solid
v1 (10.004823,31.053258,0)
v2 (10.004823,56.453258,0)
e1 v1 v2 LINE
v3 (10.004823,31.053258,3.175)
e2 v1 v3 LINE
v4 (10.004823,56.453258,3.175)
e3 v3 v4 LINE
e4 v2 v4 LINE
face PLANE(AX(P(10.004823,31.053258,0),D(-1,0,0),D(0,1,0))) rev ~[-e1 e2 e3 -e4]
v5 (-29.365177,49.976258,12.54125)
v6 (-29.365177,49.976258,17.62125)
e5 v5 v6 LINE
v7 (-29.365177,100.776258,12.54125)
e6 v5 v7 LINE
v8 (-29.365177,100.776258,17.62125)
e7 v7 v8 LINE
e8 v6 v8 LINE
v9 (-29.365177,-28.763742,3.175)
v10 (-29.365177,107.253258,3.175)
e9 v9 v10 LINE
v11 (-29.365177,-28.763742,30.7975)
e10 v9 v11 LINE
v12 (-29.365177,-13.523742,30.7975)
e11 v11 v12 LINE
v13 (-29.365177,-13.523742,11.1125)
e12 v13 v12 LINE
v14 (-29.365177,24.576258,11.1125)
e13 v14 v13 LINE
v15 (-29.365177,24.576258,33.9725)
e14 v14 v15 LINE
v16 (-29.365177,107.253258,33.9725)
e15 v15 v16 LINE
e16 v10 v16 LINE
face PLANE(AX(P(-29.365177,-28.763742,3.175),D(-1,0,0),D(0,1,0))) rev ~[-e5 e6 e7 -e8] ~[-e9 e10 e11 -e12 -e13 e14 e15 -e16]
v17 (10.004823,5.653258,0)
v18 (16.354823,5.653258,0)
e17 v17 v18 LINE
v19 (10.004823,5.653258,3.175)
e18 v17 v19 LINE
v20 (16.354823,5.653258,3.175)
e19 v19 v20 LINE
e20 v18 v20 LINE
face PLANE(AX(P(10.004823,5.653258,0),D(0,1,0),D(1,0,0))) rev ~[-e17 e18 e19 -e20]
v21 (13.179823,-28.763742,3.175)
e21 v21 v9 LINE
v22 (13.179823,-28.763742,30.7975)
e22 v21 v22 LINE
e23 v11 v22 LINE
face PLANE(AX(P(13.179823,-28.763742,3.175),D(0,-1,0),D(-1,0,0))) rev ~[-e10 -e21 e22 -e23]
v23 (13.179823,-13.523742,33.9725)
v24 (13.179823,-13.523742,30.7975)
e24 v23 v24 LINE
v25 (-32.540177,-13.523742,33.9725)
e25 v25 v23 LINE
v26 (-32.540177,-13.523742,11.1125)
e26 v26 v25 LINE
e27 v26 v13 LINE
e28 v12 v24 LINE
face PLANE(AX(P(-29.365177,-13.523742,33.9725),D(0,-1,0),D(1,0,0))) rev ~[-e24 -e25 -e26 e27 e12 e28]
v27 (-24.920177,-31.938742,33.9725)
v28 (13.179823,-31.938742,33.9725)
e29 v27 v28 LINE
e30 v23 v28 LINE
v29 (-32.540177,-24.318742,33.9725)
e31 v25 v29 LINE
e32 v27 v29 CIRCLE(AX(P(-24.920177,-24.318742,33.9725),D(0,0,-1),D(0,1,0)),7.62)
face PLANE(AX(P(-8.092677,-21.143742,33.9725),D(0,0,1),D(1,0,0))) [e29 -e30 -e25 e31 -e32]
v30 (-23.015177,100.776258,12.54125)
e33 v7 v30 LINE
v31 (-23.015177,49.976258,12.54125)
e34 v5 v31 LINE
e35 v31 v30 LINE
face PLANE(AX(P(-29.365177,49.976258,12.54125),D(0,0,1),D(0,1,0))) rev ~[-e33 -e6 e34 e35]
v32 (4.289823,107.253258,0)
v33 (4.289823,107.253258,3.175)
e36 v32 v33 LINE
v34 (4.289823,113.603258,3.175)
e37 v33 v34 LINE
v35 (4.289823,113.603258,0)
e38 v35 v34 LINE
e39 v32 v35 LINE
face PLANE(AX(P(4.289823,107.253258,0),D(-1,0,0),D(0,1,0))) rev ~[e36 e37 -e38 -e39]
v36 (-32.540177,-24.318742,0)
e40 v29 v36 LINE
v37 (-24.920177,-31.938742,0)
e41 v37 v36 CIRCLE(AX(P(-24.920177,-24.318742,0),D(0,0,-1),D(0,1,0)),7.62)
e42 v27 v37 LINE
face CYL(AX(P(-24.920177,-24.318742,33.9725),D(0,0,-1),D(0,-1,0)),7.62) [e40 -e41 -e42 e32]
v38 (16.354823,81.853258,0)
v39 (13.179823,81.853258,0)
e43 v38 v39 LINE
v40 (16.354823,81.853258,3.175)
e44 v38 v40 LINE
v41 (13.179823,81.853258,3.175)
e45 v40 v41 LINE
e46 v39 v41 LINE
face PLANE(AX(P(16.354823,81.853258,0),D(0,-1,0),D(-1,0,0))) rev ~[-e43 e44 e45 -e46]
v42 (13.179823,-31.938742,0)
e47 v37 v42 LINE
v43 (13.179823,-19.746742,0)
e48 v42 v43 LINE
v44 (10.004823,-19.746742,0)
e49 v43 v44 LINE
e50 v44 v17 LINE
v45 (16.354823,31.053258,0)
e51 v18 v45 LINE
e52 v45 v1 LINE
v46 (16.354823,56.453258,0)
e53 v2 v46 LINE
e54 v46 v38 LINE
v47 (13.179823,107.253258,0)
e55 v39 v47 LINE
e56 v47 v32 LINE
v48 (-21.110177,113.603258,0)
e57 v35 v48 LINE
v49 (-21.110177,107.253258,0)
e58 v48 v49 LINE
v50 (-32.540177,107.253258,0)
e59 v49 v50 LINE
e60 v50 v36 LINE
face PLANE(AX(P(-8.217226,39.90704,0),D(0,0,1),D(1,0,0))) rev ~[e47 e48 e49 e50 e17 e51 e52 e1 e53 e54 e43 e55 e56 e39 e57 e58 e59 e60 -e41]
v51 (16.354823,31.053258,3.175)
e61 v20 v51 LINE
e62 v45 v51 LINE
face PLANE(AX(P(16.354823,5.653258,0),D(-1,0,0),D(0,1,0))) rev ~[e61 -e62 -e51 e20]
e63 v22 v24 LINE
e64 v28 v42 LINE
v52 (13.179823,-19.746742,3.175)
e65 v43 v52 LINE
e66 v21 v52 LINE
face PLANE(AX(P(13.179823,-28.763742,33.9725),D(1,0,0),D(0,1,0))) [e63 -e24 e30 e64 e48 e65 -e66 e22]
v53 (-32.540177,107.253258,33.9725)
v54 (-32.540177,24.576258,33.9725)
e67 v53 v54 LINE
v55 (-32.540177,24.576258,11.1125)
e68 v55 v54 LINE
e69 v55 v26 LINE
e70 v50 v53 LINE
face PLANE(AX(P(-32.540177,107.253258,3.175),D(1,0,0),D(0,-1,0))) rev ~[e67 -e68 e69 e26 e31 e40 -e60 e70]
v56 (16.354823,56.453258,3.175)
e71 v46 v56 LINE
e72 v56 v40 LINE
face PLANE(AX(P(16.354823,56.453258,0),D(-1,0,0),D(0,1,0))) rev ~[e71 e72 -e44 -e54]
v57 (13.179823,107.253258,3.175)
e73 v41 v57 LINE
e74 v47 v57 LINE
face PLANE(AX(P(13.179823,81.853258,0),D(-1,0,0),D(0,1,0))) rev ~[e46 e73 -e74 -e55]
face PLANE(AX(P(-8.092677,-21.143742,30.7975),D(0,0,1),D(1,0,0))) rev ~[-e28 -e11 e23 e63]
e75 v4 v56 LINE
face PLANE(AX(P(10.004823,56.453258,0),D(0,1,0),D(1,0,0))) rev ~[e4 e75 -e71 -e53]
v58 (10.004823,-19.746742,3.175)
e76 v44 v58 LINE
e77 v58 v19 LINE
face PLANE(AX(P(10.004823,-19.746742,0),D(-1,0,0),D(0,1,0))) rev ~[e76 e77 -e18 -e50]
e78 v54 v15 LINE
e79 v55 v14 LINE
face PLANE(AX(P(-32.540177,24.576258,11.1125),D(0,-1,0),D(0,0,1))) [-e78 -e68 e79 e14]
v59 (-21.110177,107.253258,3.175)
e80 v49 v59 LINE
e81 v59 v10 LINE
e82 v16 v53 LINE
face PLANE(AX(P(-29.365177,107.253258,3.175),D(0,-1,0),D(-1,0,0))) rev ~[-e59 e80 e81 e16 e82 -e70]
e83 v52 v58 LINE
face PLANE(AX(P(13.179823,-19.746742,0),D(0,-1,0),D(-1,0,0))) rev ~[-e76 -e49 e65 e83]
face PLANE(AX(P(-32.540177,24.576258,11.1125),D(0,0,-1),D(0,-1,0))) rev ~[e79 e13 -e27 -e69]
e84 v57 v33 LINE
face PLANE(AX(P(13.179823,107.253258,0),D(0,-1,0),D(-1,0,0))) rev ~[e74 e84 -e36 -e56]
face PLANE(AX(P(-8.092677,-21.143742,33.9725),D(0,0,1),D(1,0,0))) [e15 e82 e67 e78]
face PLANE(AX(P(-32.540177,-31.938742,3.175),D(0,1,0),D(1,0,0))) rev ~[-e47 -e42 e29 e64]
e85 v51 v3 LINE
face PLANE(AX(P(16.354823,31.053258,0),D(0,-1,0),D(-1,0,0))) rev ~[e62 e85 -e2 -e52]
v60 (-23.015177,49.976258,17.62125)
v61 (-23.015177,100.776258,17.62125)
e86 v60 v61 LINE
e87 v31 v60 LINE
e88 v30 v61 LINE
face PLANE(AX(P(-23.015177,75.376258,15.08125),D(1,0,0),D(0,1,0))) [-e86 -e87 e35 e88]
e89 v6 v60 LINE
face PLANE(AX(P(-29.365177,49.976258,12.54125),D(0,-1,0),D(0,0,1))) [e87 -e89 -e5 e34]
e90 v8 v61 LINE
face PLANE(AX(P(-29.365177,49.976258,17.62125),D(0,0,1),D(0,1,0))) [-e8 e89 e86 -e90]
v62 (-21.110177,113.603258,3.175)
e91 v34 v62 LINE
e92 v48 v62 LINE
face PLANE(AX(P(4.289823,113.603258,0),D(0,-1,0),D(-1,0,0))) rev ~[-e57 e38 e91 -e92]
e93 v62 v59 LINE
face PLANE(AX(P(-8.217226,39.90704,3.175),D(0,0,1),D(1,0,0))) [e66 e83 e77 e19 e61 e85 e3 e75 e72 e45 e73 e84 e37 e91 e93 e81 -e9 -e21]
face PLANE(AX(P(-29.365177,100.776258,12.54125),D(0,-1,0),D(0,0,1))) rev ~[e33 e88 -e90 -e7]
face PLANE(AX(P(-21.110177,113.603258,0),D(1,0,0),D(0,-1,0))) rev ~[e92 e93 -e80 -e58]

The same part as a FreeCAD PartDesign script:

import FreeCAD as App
import Part
import Sketcher
from FreeCAD import Vector
Q = App.Units.Quantity


def edges_at(feature, points):
    """Names of the edges that pass closest to the given points."""
    edges = feature.Shape.Edges
    near = lambda p: min(range(len(edges)), key=lambda i: edges[i].distToShape(Part.Vertex(*p))[0])
    return sorted({f"Edge{near(p) + 1}" for p in points})


def add_polygon(sketch, points):
    """Adds a closed chain of lines whose ends are joined by coincident constraints."""
    first, n = sketch.GeometryCount, len(points)
    for a, b in zip(points, points[1:] + points[:1]):
        sketch.addGeometry(Part.LineSegment(App.Vector(*a, 0), App.Vector(*b, 0)), False)
    for i in range(n):
        sketch.addConstraint(Sketcher.Constraint("Coincident", first + i, 2, first + (i + 1) % n, 1))

doc = App.newDocument("Part")
body = doc.addObject("PartDesign::Body", "Body")

# Sketch on XY plane
sketch1 = body.newObject("Sketcher::SketchObject", "Sketch")
sketch1.AttachmentSupport = (doc.getObject("XY_Plane"), [""])
sketch1.MapMode = "FlatFace"
add_polygon(sketch1, [(-21.1, 107.3), (-32.5, 107.3), (-32.5, -31.9), (13.2, -31.9), (13.2, -19.7), (10, -19.7), (10, 5.7), (16.4, 5.7), (16.4, 31.1), (10, 31.1), (10, 56.5), (16.4, 56.5), (16.4, 81.9), (13.2, 81.9), (13.2, 107.3), (4.3, 107.3), (4.3, 113.6), (-21.1, 113.6)])  # lines 0-17
sketch1.addConstraint(Sketcher.Constraint("Horizontal", 0))
sketch1.addConstraint(Sketcher.Constraint("Vertical", 1))
sketch1.addConstraint(Sketcher.Constraint("Horizontal", 2))
sketch1.addConstraint(Sketcher.Constraint("Vertical", 3))
sketch1.addConstraint(Sketcher.Constraint("Horizontal", 4))
sketch1.addConstraint(Sketcher.Constraint("Vertical", 5))
sketch1.addConstraint(Sketcher.Constraint("Horizontal", 6))
sketch1.addConstraint(Sketcher.Constraint("Vertical", 7))
sketch1.addConstraint(Sketcher.Constraint("Horizontal", 8))
sketch1.addConstraint(Sketcher.Constraint("Vertical", 9))
sketch1.addConstraint(Sketcher.Constraint("Horizontal", 10))
sketch1.addConstraint(Sketcher.Constraint("Vertical", 11))
sketch1.addConstraint(Sketcher.Constraint("Horizontal", 12))
sketch1.addConstraint(Sketcher.Constraint("Vertical", 13))
sketch1.addConstraint(Sketcher.Constraint("Horizontal", 14))
sketch1.addConstraint(Sketcher.Constraint("Vertical", 15))
sketch1.addConstraint(Sketcher.Constraint("Horizontal", 16))
sketch1.addConstraint(Sketcher.Constraint("Vertical", 17))
sketch1.addConstraint(Sketcher.Constraint("Horizontal", 0, 2, 13, 2))
sketch1.addConstraint(Sketcher.Constraint("Vertical", 5, 2, 8, 2))
sketch1.addConstraint(Sketcher.Constraint("Vertical", 7, 2, 10, 2))
sketch1.addConstraint(Sketcher.Constraint("Vertical", 3, 2, 12, 2))
sketch1.addConstraint(Sketcher.Constraint("Equal", 4, 12))
sketch1.addConstraint(Sketcher.Constraint("Equal", 16, 5))
sketch1.addConstraint(Sketcher.Constraint("Equal", 5, 7))
sketch1.addConstraint(Sketcher.Constraint("Equal", 7, 9))
sketch1.addConstraint(Sketcher.Constraint("Equal", 9, 11))
sketch1.addConstraint(Sketcher.Constraint("Equal", 11, 13))
sketch1.addConstraint(Sketcher.Constraint("Equal", 10, 15))
sketch1.addConstraint(Sketcher.Constraint("DistanceX", 16, 2, 16, 1, Q("1 in")))
sketch1.addConstraint(Sketcher.Constraint("DistanceX", 2, 1, 2, 2, Q("1.8 in")))
sketch1.addConstraint(Sketcher.Constraint("DistanceX", 0, 2, 0, 1, Q("0.45 in")))
sketch1.addConstraint(Sketcher.Constraint("DistanceX", 6, 1, 6, 2, Q("0.25 in")))
sketch1.addConstraint(Sketcher.Constraint("DistanceY", 1, 2, 1, 1, Q("5.48 in")))
sketch1.addConstraint(Sketcher.Constraint("DistanceY", -1, 1, 0, 2, Q("107.253258 mm")))
sketch1.addConstraint(Sketcher.Constraint("DistanceX", 0, 2, -1, 1, Q("32.540177 mm")))
pad1 = body.newObject("PartDesign::Pad", "Pad")
pad1.Profile = sketch1
pad1.Length = Q("0.125 in")

# Sketch on XY plane
sketch2 = body.newObject("Sketcher::SketchObject", "Sketch001")
sketch2.AttachmentSupport = (doc.getObject("XY_Plane"), [""])
sketch2.MapMode = "FlatFace"
sketch2.AttachmentOffset = App.Placement(Vector(0, 0, 0.125 * 25.4), App.Rotation())
add_polygon(sketch2, [(13.2, -28.8), (-29.4, -28.8), (-29.4, 107.3), (-32.5, 107.3), (-32.5, -31.9), (13.2, -31.9)])  # lines 0-5
sketch2.addConstraint(Sketcher.Constraint("Horizontal", 0))
sketch2.addConstraint(Sketcher.Constraint("Vertical", 1))
sketch2.addConstraint(Sketcher.Constraint("Horizontal", 2))
sketch2.addConstraint(Sketcher.Constraint("Vertical", 3))
sketch2.addConstraint(Sketcher.Constraint("Horizontal", 4))
sketch2.addConstraint(Sketcher.Constraint("Vertical", 5))
sketch2.addConstraint(Sketcher.Constraint("Equal", 2, 5))
sketch2.addConstraint(Sketcher.Constraint("DistanceX", 4, 1, 4, 2, Q("1.8 in")))
sketch2.addConstraint(Sketcher.Constraint("DistanceY", 3, 2, 3, 1, Q("5.48 in")))
sketch2.addConstraint(Sketcher.Constraint("DistanceX", 0, 2, 0, 1, Q("1.675 in")))
sketch2.addConstraint(Sketcher.Constraint("DistanceY", 0, 2, -1, 1, Q("28.763742 mm")))
sketch2.addConstraint(Sketcher.Constraint("DistanceX", 0, 2, -1, 1, Q("29.365177 mm")))
pad2 = body.newObject("PartDesign::Pad", "Pad001")
pad2.Profile = sketch2
pad2.Length = Q("1.2125 in")

# Sketch on XY plane
sketch3 = body.newObject("Sketcher::SketchObject", "Sketch002")
sketch3.AttachmentSupport = (doc.getObject("XY_Plane"), [""])
sketch3.MapMode = "FlatFace"
sketch3.AttachmentOffset = App.Placement(Vector(0, 0, 1.3375 * 25.4), App.Rotation())
add_polygon(sketch3, [(-29, -14), (-29, -29), (13, -29), (13, -14)])  # lines 0-3
sketch3.addConstraint(Sketcher.Constraint("Vertical", 0))
sketch3.addConstraint(Sketcher.Constraint("Horizontal", 1))
sketch3.addConstraint(Sketcher.Constraint("Vertical", 2))
sketch3.addConstraint(Sketcher.Constraint("Horizontal", 3))
sketch3.addConstraint(Sketcher.Constraint("DistanceY", 0, 2, 0, 1, Q("0.6 in")))
sketch3.addConstraint(Sketcher.Constraint("DistanceX", 1, 1, 1, 2, Q("1.675 in")))
sketch3.addConstraint(Sketcher.Constraint("DistanceY", 0, 2, -1, 1, Q("28.763742 mm")))
sketch3.addConstraint(Sketcher.Constraint("DistanceX", 0, 2, -1, 1, Q("29.365177 mm")))
pad3 = body.newObject("PartDesign::Pad", "Pad002")
pad3.Profile = sketch3
pad3.Length = Q("0.125 in")
pad3.Reversed = True

# Sketch on YZ plane
sketch4 = body.newObject("Sketcher::SketchObject", "Sketch003")
sketch4.AttachmentSupport = (doc.getObject("YZ_Plane"), [""])
sketch4.MapMode = "FlatFace"
sketch4.AttachmentOffset = App.Placement(Vector(0, 0, -32.540177), App.Rotation())
add_polygon(sketch4, [(25, 34), (25, 11), (-14, 11), (-14, 34)])  # lines 0-3
sketch4.addConstraint(Sketcher.Constraint("Vertical", 0))
sketch4.addConstraint(Sketcher.Constraint("Horizontal", 1))
sketch4.addConstraint(Sketcher.Constraint("Vertical", 2))
sketch4.addConstraint(Sketcher.Constraint("Horizontal", 3))
sketch4.addConstraint(Sketcher.Constraint("DistanceX", 1, 2, 1, 1, Q("1.5 in")))
sketch4.addConstraint(Sketcher.Constraint("DistanceY", 0, 2, 0, 1, Q("0.9 in")))
sketch4.addConstraint(Sketcher.Constraint("DistanceY", -1, 1, 0, 2, Q("0.4375 in")))
sketch4.addConstraint(Sketcher.Constraint("DistanceX", -1, 1, 0, 2, Q("24.576258 mm")))
pocket1 = body.newObject("PartDesign::Pocket", "Pocket")
pocket1.Profile = sketch4
pocket1.Type = "ThroughAll"
pocket1.Reversed = True

# Sketch on YZ plane
sketch5 = body.newObject("Sketcher::SketchObject", "Sketch004")
sketch5.AttachmentSupport = (doc.getObject("YZ_Plane"), [""])
sketch5.MapMode = "FlatFace"
sketch5.AttachmentOffset = App.Placement(Vector(0, 0, -29.365177), App.Rotation())
add_polygon(sketch5, [(50, 18), (50, 13), (101, 13), (101, 18)])  # lines 0-3
sketch5.addConstraint(Sketcher.Constraint("Vertical", 0))
sketch5.addConstraint(Sketcher.Constraint("Horizontal", 1))
sketch5.addConstraint(Sketcher.Constraint("Vertical", 2))
sketch5.addConstraint(Sketcher.Constraint("Horizontal", 3))
sketch5.addConstraint(Sketcher.Constraint("DistanceX", 1, 1, 1, 2, Q("2 in")))
sketch5.addConstraint(Sketcher.Constraint("DistanceY", 0, 2, 0, 1, Q("0.2 in")))
sketch5.addConstraint(Sketcher.Constraint("DistanceX", -1, 1, 0, 2, Q("49.976258 mm")))
sketch5.addConstraint(Sketcher.Constraint("DistanceY", -1, 1, 0, 2, Q("12.54125 mm")))
pad4 = body.newObject("PartDesign::Pad", "Pad003")
pad4.Profile = sketch5
pad4.Length = Q("0.25 in")
doc.recompute()

fillet = body.newObject("PartDesign::Fillet", "Fillet")
fillet.Base = (pad4, edges_at(pad4, [(-32.54, -31.939, 16.986)]))
fillet.Radius = Q("0.3 in")

doc.recompute()
